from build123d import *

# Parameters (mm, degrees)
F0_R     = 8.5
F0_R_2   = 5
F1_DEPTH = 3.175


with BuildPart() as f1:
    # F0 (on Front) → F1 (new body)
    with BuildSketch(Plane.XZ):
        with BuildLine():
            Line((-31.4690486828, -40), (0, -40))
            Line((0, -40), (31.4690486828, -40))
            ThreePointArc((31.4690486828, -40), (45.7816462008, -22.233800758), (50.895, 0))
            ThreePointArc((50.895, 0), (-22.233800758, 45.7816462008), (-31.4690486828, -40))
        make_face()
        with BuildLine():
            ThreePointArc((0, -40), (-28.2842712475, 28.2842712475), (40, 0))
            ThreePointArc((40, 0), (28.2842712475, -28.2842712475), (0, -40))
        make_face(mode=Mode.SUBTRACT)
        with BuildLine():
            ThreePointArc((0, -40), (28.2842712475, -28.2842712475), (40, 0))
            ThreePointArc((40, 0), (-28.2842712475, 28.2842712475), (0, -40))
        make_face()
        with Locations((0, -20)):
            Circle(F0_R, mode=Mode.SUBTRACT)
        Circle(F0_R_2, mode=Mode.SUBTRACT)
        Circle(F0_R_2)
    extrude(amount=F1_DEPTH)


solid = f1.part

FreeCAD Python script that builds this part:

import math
import FreeCAD as App
import Part
import Sketcher

doc = App.newDocument("Part")
params = doc.addObject("Spreadsheet::Sheet", "Params")
for row, (alias, value) in enumerate([
    ("sketch1_diameter", "17 mm"),
    ("pad1_length", "3.175 mm"),
], start=1):
    params.set(f"A{row}", alias)
    params.set(f"B{row}", "=" + value)
    params.setAlias(f"B{row}", alias)

body = doc.addObject("PartDesign::Body", "Body")

sketch1 = body.newObject("Sketcher::SketchObject", "Sketch")
sketch1.AttachmentSupport = (doc.getObject("XZ_Plane"), [""])
sketch1.MapMode = "FlatFace"
sketch1.addGeometry([
    Part.ArcOfCircle(Part.Circle(App.Vector(0, 0, 0), App.Vector(0, 0, 1), 51), math.radians(-52), math.radians(0)),
    Part.ArcOfCircle(Part.Circle(App.Vector(0, 0, 0), App.Vector(0, 0, 1), 51), math.radians(0), math.radians(232)),
    Part.LineSegment(App.Vector(-31, -40, 0), App.Vector(31, -40, 0)),
    Part.Circle(App.Vector(0, -20, 0), App.Vector(0, 0, 1), 8),
], False)
sketch1.addConstraint([
    Sketcher.Constraint("Tangent", 0, 2, 1, 1),
    Sketcher.Constraint("Coincident", 1, 2, 2, 1),
    Sketcher.Constraint("Coincident", 2, 2, 0, 1),
    Sketcher.Constraint("Horizontal", 2),
    Sketcher.Constraint("Coincident", 0, 3, -1, 1),
    Sketcher.Constraint("Equal", 0, 1),
    Sketcher.Constraint("PointOnObject", 3, 3, -2),
    Sketcher.Constraint("PointOnObject", 0, 2, -1),
    Sketcher.Constraint("Diameter", 3, 17.0),
    Sketcher.Constraint("DistanceY", 3, 3, -1, 1, 20.0),
    Sketcher.Constraint("DistanceY", 1, 2, -1, 1, 40.0),
    Sketcher.Constraint("Radius", 0, 50.895),
])
sketch1.setExpression("Constraints[8]", "Params.sketch1_diameter")
pad1 = body.newObject("PartDesign::Pad", "Pad")
pad1.Profile = sketch1
pad1.setExpression("Length", "Params.pad1_length")

doc.recompute()
